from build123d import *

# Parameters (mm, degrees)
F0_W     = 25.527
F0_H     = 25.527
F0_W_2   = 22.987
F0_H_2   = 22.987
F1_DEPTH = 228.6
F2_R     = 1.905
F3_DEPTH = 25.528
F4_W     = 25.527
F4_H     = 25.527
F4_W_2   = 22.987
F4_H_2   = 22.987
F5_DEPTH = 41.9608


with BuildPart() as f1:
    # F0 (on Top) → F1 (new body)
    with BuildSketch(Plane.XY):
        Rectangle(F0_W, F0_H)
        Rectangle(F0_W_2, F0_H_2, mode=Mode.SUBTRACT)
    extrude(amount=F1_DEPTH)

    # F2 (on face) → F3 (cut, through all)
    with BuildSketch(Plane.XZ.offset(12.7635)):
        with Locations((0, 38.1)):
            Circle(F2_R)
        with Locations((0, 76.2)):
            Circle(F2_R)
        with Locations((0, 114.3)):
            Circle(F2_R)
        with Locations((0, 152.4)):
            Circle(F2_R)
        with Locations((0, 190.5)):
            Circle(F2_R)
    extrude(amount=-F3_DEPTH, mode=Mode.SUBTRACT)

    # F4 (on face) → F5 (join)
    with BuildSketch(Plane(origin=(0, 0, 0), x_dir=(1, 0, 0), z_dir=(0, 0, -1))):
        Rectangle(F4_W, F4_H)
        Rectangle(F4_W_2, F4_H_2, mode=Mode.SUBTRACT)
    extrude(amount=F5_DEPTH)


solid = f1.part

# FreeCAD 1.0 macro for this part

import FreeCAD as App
import Part
import Sketcher
Q = App.Units.Quantity


def add_polygon(sketch, points):
    """Adds a closed chain of lines whose ends are joined by coincident constraints."""
    first, n = sketch.GeometryCount, len(points)
    for a, b in zip(points, points[1:] + points[:1]):
        sketch.addGeometry(Part.LineSegment(App.Vector(*a, 0), App.Vector(*b, 0)), False)
    for i in range(n):
        sketch.addConstraint(Sketcher.Constraint("Coincident", first + i, 2, first + (i + 1) % n, 1))

doc = App.newDocument("Part")
body = doc.addObject("PartDesign::Body", "Body")

# Sketch on XY plane
sketch1 = body.newObject("Sketcher::SketchObject", "Sketch")
sketch1.AttachmentSupport = (doc.getObject("XY_Plane"), [""])
sketch1.MapMode = "FlatFace"
add_polygon(sketch1, [(-13, 13), (-13, -13), (13, -13), (13, 13)])  # lines 0-3
add_polygon(sketch1, [(11, -11), (-11, -11), (-11, 11), (11, 11)])  # lines 4-7
sketch1.addConstraint(Sketcher.Constraint("Vertical", 0))
sketch1.addConstraint(Sketcher.Constraint("Horizontal", 1))
sketch1.addConstraint(Sketcher.Constraint("Vertical", 2))
sketch1.addConstraint(Sketcher.Constraint("Horizontal", 3))
sketch1.addConstraint(Sketcher.Constraint("Horizontal", 4))
sketch1.addConstraint(Sketcher.Constraint("Vertical", 5))
sketch1.addConstraint(Sketcher.Constraint("Horizontal", 6))
sketch1.addConstraint(Sketcher.Constraint("Vertical", 7))
sketch1.addConstraint(Sketcher.Constraint("Symmetric", 0, 2, 2, 2, -1, 1))
sketch1.addConstraint(Sketcher.Constraint("Symmetric", 4, 2, 6, 2, -1, 1))
sketch1.addConstraint(Sketcher.Constraint("Equal", 3, 0))
sketch1.addConstraint(Sketcher.Constraint("Equal", 6, 5))
sketch1.addConstraint(Sketcher.Constraint("DistanceX", 1, 1, 1, 2, Q("1.005 in")))
sketch1.addConstraint(Sketcher.Constraint("DistanceX", 4, 2, 4, 1, Q("0.905 in")))
pad1 = body.newObject("PartDesign::Pad", "Pad")
pad1.Profile = sketch1
pad1.Length = Q("9 in")

# Sketch on XZ plane
sketch2 = body.newObject("Sketcher::SketchObject", "Sketch001")
sketch2.AttachmentSupport = (doc.getObject("XZ_Plane"), [""])
sketch2.MapMode = "FlatFace"
sketch2.AttachmentOffset = App.Placement(App.Vector(0, 0, 0.5025 * 25.4), App.Rotation())
sketch2.addGeometry(Part.Circle(App.Vector(0, 38.1, 0), App.Vector(0, 0, 1), 1.9), False)
sketch2.addGeometry(Part.Circle(App.Vector(0, 76.2, 0), App.Vector(0, 0, 1), 1.9), False)
sketch2.addGeometry(Part.Circle(App.Vector(0, 114.3, 0), App.Vector(0, 0, 1), 1.9), False)
sketch2.addGeometry(Part.Circle(App.Vector(0, 152.4, 0), App.Vector(0, 0, 1), 1.9), False)
sketch2.addGeometry(Part.Circle(App.Vector(0, 190.5, 0), App.Vector(0, 0, 1), 1.9), False)
sketch2.addConstraint(Sketcher.Constraint("Equal", 0, 1))
sketch2.addConstraint(Sketcher.Constraint("Equal", 1, 2))
sketch2.addConstraint(Sketcher.Constraint("Equal", 2, 3))
sketch2.addConstraint(Sketcher.Constraint("Equal", 3, 4))
sketch2.addConstraint(Sketcher.Constraint("PointOnObject", 0, 3, -2))
sketch2.addConstraint(Sketcher.Constraint("PointOnObject", 1, 3, -2))
sketch2.addConstraint(Sketcher.Constraint("PointOnObject", 2, 3, -2))
sketch2.addConstraint(Sketcher.Constraint("PointOnObject", 3, 3, -2))
sketch2.addConstraint(Sketcher.Constraint("PointOnObject", 4, 3, -2))
sketch2.addConstraint(Sketcher.Constraint("Diameter", 0, Q("0.15 in")))
sketch2.addConstraint(Sketcher.Constraint("DistanceY", -1, 1, 1, 3, Q("3 in")))
sketch2.addConstraint(Sketcher.Constraint("DistanceY", -1, 1, 3, 3, Q("6 in")))
sketch2.addConstraint(Sketcher.Constraint("DistanceY", 0, 3, 2, 3, Q("3 in")))
sketch2.addConstraint(Sketcher.Constraint("DistanceY", 2, 3, 4, 3, Q("3 in")))
sketch2.addConstraint(Sketcher.Constraint("DistanceY", -1, 1, 0, 3, Q("1.5 in")))
pocket1 = body.newObject("PartDesign::Pocket", "Pocket")
pocket1.Profile = sketch2
pocket1.Type = "ThroughAll"

# Sketch on XY plane
sketch3 = body.newObject("Sketcher::SketchObject", "Sketch002")
sketch3.AttachmentSupport = (doc.getObject("XY_Plane"), [""])
sketch3.MapMode = "FlatFace"
add_polygon(sketch3, [(-13, -13), (-13, 13), (13, 13), (13, -13)])  # lines 0-3
add_polygon(sketch3, [(11, 11), (-11, 11), (-11, -11), (11, -11)])  # lines 4-7
sketch3.addConstraint(Sketcher.Constraint("Vertical", 0))
sketch3.addConstraint(Sketcher.Constraint("Horizontal", 1))
sketch3.addConstraint(Sketcher.Constraint("Vertical", 2))
sketch3.addConstraint(Sketcher.Constraint("Horizontal", 3))
sketch3.addConstraint(Sketcher.Constraint("Horizontal", 4))
sketch3.addConstraint(Sketcher.Constraint("Vertical", 5))
sketch3.addConstraint(Sketcher.Constraint("Horizontal", 6))
sketch3.addConstraint(Sketcher.Constraint("Vertical", 7))
sketch3.addConstraint(Sketcher.Constraint("Symmetric", 0, 2, 2, 2, -1, 1))
sketch3.addConstraint(Sketcher.Constraint("Symmetric", 4, 2, 6, 2, -1, 1))
sketch3.addConstraint(Sketcher.Constraint("Equal", 3, 0))
sketch3.addConstraint(Sketcher.Constraint("Equal", 6, 5))
sketch3.addConstraint(Sketcher.Constraint("DistanceX", 1, 1, 1, 2, Q("1.005 in")))
sketch3.addConstraint(Sketcher.Constraint("DistanceX", 4, 2, 4, 1, Q("0.905 in")))
pad2 = body.newObject("PartDesign::Pad", "Pad001")
pad2.Profile = sketch3
pad2.Length = Q("1.652 in")
pad2.Reversed = True

doc.recompute()
